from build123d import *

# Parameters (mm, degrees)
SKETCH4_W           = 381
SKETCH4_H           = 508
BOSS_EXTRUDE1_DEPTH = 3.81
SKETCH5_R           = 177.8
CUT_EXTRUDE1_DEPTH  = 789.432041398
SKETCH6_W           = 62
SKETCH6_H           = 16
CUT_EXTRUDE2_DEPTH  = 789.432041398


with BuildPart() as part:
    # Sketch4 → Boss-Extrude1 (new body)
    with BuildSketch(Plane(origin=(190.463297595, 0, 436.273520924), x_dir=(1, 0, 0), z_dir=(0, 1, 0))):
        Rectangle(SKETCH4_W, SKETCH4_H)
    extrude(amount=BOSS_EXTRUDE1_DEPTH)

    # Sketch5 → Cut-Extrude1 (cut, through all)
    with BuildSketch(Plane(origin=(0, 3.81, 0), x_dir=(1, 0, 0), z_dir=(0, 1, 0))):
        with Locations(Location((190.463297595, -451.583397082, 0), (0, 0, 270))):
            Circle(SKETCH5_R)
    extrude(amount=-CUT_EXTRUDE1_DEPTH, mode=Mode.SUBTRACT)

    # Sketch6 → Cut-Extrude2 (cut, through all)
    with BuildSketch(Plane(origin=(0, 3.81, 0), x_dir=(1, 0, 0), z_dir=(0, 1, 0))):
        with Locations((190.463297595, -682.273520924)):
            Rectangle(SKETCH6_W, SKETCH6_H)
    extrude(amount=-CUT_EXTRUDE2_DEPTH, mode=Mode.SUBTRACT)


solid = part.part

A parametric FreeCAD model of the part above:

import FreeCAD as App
import Part
import Sketcher
from FreeCAD import Vector
Q = App.Units.Quantity

doc = App.newDocument("Part")
body = doc.addObject("PartDesign::Body", "Body")

# Sketch on XZ plane
sketch1 = doc.addObject("Sketcher::SketchObject", "Sketch")
body.addObject(sketch1)
sketch1.AttachmentSupport = (doc.XZ_Plane, [""])
sketch1.MapMode = "FlatFace"
sketch1.addGeometry(Part.LineSegment(Vector(-0.036702, 182.273521, 0), Vector(-0.036702, 690.273521, 0)), False)
sketch1.addGeometry(Part.LineSegment(Vector(-0.036702, 690.273521, 0), Vector(380.963298, 690.273521, 0)), False)
sketch1.addGeometry(Part.LineSegment(Vector(380.963298, 690.273521, 0), Vector(380.963298, 182.273521, 0)), False)
sketch1.addGeometry(Part.LineSegment(Vector(380.963298, 182.273521, 0), Vector(-0.036702, 182.273521, 0)), False)
sketch1.addConstraint(Sketcher.Constraint("Coincident", 0, 2, 1, 1))
sketch1.addConstraint(Sketcher.Constraint("Coincident", 1, 2, 2, 1))
sketch1.addConstraint(Sketcher.Constraint("Coincident", 2, 2, 3, 1))
sketch1.addConstraint(Sketcher.Constraint("Coincident", 3, 2, 0, 1))
sketch1.addConstraint(Sketcher.Constraint("Vertical", 0))
sketch1.addConstraint(Sketcher.Constraint("Horizontal", 1))
sketch1.addConstraint(Sketcher.Constraint("Vertical", 2))
sketch1.addConstraint(Sketcher.Constraint("Horizontal", 3))
sketch1.addConstraint(Sketcher.Constraint("DistanceX", 1, 1, 1, 2, Q("15 in")))
sketch1.addConstraint(Sketcher.Constraint("DistanceY", 0, 1, 0, 2, Q("20 in")))
sketch1.addConstraint(Sketcher.Constraint("DistanceY", -1, 1, 0, 2, 690.273521))
sketch1.addConstraint(Sketcher.Constraint("DistanceX", 0, 2, -1, 1, 0.036702))
pad1 = doc.addObject("PartDesign::Pad", "Pad")
body.addObject(pad1)
pad1.Profile = sketch1
pad1.Length = Q("0.15 in")
pad1.Reversed = True

# Sketch on XZ plane
sketch2 = doc.addObject("Sketcher::SketchObject", "Sketch001")
body.addObject(sketch2)
sketch2.AttachmentSupport = (doc.XZ_Plane, [""])
sketch2.MapMode = "FlatFace"
sketch2.AttachmentOffset = App.Placement(Vector(0, 0, -0.15 * 25.4), App.Rotation())
sketch2.addGeometry(Part.Circle(Vector(190.463298, 451.583397, 0), Vector(0, 0, 1), 177.8), False)
sketch2.addConstraint(Sketcher.Constraint("Diameter", 0, Q("14 in")))
sketch2.addConstraint(Sketcher.Constraint("DistanceX", -1, 1, 0, 3, 190.463298))
sketch2.addConstraint(Sketcher.Constraint("DistanceY", -1, 1, 0, 3, 451.583397))
pocket1 = doc.addObject("PartDesign::Pocket", "Pocket")
body.addObject(pocket1)
pocket1.Profile = sketch2
pocket1.Type = "ThroughAll"
pocket1.Reversed = True

# Sketch on XZ plane
sketch3 = doc.addObject("Sketcher::SketchObject", "Sketch002")
body.addObject(sketch3)
sketch3.AttachmentSupport = (doc.XZ_Plane, [""])
sketch3.MapMode = "FlatFace"
sketch3.AttachmentOffset = App.Placement(Vector(0, 0, -0.15 * 25.4), App.Rotation())
sketch3.addGeometry(Part.LineSegment(Vector(159.463298, 674.273521, 0), Vector(159.463298, 690.273521, 0)), False)
sketch3.addGeometry(Part.LineSegment(Vector(159.463298, 690.273521, 0), Vector(221.463298, 690.273521, 0)), False)
sketch3.addGeometry(Part.LineSegment(Vector(221.463298, 690.273521, 0), Vector(221.463298, 674.273521, 0)), False)
sketch3.addGeometry(Part.LineSegment(Vector(221.463298, 674.273521, 0), Vector(159.463298, 674.273521, 0)), False)
sketch3.addConstraint(Sketcher.Constraint("Coincident", 0, 2, 1, 1))
sketch3.addConstraint(Sketcher.Constraint("Coincident", 1, 2, 2, 1))
sketch3.addConstraint(Sketcher.Constraint("Coincident", 2, 2, 3, 1))
sketch3.addConstraint(Sketcher.Constraint("Coincident", 3, 2, 0, 1))
sketch3.addConstraint(Sketcher.Constraint("Vertical", 0))
sketch3.addConstraint(Sketcher.Constraint("Horizontal", 1))
sketch3.addConstraint(Sketcher.Constraint("Vertical", 2))
sketch3.addConstraint(Sketcher.Constraint("Horizontal", 3))
sketch3.addConstraint(Sketcher.Constraint("DistanceX", 1, 1, 1, 2, 62.0))
sketch3.addConstraint(Sketcher.Constraint("DistanceY", 0, 1, 0, 2, 16.0))
sketch3.addConstraint(Sketcher.Constraint("DistanceY", -1, 1, 0, 2, 690.273521))
sketch3.addConstraint(Sketcher.Constraint("DistanceX", -1, 1, 0, 2, 159.463298))
pocket2 = doc.addObject("PartDesign::Pocket", "Pocket001")
body.addObject(pocket2)
pocket2.Profile = sketch3
pocket2.Type = "ThroughAll"
pocket2.Reversed = True

doc.recompute()
